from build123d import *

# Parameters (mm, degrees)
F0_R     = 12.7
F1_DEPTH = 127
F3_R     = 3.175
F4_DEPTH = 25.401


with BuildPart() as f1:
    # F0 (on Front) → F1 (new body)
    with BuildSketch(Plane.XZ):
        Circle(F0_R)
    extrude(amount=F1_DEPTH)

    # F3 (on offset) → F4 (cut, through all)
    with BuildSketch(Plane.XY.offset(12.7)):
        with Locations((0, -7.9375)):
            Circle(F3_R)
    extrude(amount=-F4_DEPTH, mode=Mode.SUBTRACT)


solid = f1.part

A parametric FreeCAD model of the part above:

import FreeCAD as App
import Part
import Sketcher
from FreeCAD import Vector
Q = App.Units.Quantity

doc = App.newDocument("Part")
body = doc.addObject("PartDesign::Body", "Body")

sketch1 = body.newObject("Sketcher::SketchObject", "Sketch")
sketch1.AttachmentSupport = (doc.getObject("XZ_Plane"), [""])
sketch1.MapMode = "FlatFace"
sketch1.addGeometry(Part.Circle(Vector(0, 0, 0), Vector(0, 0, 1), 13), False)
sketch1.addConstraint([
    Sketcher.Constraint("Coincident", 0, 3, -1, 1),
    Sketcher.Constraint("Diameter", 0, Q("1 in")),
])
pad1 = body.newObject("PartDesign::Pad", "Pad")
pad1.Profile = sketch1
pad1.Length = Q("5 in")

sketch2 = body.newObject("Sketcher::SketchObject", "Sketch001")
sketch2.AttachmentSupport = (doc.getObject("XY_Plane"), [""])
sketch2.MapMode = "FlatFace"
sketch2.AttachmentOffset = App.Placement(Vector(0, 0, 0.5 * 25.4), App.Rotation())
sketch2.addGeometry(Part.Circle(Vector(0, -7.9, 0), Vector(0, 0, 1), 3.2), False)
sketch2.addConstraint([
    Sketcher.Constraint("PointOnObject", 0, 3, -2),
    Sketcher.Constraint("Diameter", 0, Q("0.25 in")),
    Sketcher.Constraint("DistanceY", 0, 3, -1, 1, Q("0.3125 in")),
])
pocket1 = body.newObject("PartDesign::Pocket", "Pocket")
pocket1.Profile = sketch2
pocket1.Type = "ThroughAll"

doc.recompute()
